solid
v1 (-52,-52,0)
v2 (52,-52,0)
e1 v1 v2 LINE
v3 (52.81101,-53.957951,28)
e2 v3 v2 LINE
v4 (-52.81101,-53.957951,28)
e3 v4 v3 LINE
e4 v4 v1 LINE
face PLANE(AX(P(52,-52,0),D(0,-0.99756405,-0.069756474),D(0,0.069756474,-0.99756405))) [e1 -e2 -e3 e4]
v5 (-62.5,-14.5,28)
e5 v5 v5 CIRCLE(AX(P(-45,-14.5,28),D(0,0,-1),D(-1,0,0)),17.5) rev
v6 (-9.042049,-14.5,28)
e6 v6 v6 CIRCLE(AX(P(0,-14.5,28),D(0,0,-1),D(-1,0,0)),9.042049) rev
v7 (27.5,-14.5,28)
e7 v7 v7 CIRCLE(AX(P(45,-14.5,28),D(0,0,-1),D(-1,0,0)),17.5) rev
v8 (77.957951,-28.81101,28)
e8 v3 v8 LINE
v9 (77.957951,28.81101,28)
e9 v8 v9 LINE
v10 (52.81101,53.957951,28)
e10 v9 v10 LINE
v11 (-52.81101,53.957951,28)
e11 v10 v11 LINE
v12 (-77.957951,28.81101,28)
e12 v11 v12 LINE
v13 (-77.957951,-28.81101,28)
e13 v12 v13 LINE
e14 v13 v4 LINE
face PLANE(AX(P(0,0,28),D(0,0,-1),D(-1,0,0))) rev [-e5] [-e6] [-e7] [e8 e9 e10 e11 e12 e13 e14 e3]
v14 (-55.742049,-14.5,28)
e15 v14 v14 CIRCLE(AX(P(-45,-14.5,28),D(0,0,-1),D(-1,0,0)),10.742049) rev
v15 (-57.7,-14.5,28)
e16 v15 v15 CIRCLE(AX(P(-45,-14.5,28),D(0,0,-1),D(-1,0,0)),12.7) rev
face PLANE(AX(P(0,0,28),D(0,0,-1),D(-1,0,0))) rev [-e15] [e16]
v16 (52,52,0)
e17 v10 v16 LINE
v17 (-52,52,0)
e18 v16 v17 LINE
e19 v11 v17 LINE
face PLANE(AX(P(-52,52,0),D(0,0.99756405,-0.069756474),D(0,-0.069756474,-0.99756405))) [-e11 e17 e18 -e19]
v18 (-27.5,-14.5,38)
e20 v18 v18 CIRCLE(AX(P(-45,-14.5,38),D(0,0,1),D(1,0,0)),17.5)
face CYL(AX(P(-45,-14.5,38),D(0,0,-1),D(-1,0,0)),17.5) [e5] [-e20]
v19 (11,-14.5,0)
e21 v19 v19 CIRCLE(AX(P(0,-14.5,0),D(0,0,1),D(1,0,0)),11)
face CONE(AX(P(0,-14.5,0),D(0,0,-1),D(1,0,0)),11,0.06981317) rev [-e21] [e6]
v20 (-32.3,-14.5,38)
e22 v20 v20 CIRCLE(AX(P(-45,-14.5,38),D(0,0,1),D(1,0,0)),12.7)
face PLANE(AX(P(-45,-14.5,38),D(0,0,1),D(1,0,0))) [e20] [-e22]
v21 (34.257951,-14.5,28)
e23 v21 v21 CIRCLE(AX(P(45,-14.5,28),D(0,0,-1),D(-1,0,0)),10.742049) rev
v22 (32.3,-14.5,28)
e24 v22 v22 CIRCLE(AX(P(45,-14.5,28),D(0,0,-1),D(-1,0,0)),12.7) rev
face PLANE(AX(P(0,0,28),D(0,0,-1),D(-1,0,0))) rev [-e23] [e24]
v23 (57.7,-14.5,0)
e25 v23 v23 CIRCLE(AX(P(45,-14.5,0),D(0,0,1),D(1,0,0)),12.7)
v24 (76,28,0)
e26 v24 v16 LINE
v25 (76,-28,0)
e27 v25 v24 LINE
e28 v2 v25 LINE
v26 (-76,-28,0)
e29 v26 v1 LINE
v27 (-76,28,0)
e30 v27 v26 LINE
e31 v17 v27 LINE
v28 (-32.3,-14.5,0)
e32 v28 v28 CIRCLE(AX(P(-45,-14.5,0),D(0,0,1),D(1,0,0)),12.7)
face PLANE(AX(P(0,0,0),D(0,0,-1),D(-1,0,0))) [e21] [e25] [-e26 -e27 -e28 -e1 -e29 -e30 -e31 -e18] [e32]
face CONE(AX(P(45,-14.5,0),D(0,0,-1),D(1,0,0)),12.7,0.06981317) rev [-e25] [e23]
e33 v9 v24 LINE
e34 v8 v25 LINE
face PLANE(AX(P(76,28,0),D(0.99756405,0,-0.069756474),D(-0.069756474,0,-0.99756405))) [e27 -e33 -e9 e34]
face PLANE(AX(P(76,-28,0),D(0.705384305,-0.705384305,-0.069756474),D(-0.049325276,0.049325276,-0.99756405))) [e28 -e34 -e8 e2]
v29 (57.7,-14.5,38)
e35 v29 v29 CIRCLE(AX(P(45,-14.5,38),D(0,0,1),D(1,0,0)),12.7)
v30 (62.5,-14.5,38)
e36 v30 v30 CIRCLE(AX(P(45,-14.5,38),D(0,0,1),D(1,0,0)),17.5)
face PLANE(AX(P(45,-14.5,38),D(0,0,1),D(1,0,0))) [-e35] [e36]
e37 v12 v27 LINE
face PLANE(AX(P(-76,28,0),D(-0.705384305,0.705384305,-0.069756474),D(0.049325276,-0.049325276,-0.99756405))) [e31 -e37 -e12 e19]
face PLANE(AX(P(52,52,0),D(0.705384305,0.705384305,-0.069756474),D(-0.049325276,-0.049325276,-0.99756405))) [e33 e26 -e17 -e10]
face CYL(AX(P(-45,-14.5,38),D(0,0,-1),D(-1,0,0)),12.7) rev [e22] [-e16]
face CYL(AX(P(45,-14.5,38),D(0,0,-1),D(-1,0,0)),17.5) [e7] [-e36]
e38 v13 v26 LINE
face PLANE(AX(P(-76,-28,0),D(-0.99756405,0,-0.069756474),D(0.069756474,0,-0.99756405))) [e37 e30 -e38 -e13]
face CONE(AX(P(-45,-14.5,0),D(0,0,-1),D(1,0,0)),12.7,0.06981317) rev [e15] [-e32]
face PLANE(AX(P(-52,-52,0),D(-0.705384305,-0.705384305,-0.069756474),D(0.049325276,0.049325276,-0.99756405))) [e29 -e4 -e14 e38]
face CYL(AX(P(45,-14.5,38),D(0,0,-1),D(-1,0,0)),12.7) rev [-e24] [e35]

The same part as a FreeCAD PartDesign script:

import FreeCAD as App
import Part
import Sketcher

V = App.Vector


def faces_at(feature, points):
    """Names of the faces that lie closest to the given points."""
    faces = feature.Shape.Faces
    near = lambda p: min(range(len(faces)), key=lambda i: faces[i].distToShape(Part.Vertex(*p))[0])
    return sorted({f"Face{near(p) + 1}" for p in points})


def add_polygon(sketch, points):
    """Adds a closed chain of lines whose ends are joined by coincident constraints."""
    first, n = sketch.GeometryCount, len(points)
    for a, b in zip(points, points[1:] + points[:1]):
        sketch.addGeometry(Part.LineSegment(App.Vector(*a, 0), App.Vector(*b, 0)), False)
    for i in range(n):
        sketch.addConstraint(Sketcher.Constraint("Coincident", first + i, 2, first + (i + 1) % n, 1))

doc = App.newDocument("Part")
body = doc.addObject("PartDesign::Body", "Body")

# Sketch on XY plane
sketch1 = doc.addObject("Sketcher::SketchObject", "Sketch")
body.addObject(sketch1)
sketch1.AttachmentSupport = (doc.XY_Plane, [""])
sketch1.MapMode = "FlatFace"
add_polygon(sketch1, [(-52, 52), (-76, 28), (-76, -28), (-52, -52), (52, -52), (76, -28), (76, 28), (52, 52)])  # lines 0-7
sketch1.addGeometry(Part.Circle(V(-45, -14, 0), V(0, 0, 1), 13), False)  # 8
sketch1.addGeometry(Part.Circle(V(0, -14, 0), V(0, 0, 1), 11), False)  # 9
sketch1.addGeometry(Part.Circle(V(45, -14, 0), V(0, 0, 1), 13), False)  # 10
sketch1.addConstraint(Sketcher.Constraint("Vertical", 1))
sketch1.addConstraint(Sketcher.Constraint("Horizontal", 3))
sketch1.addConstraint(Sketcher.Constraint("Vertical", 5))
sketch1.addConstraint(Sketcher.Constraint("Horizontal", 7))
sketch1.addConstraint(Sketcher.Constraint("Equal", 8, 10))
sketch1.addConstraint(Sketcher.Constraint("Symmetric", 0, 2, 4, 2, -1, 1))
sketch1.addConstraint(Sketcher.Constraint("Symmetric", 2, 2, 6, 2, -1, 1))
sketch1.addConstraint(Sketcher.Constraint("Symmetric", 8, 3, 10, 3, -2))
sketch1.addConstraint(Sketcher.Constraint("PointOnObject", 9, 3, -2))
sketch1.addConstraint(Sketcher.Constraint("Perpendicular", 0, 2))
sketch1.addConstraint(Sketcher.Constraint("Perpendicular", 2, 4))
sketch1.addConstraint(Sketcher.Constraint("Perpendicular", 4, 6))
sketch1.addConstraint(Sketcher.Constraint("Horizontal", 8, 3, 9, 3))
sketch1.addConstraint(Sketcher.Constraint("Horizontal", 1, 2, 4, 2))
sketch1.addConstraint(Sketcher.Constraint("Vertical", 3, 2, 6, 2))
sketch1.addConstraint(Sketcher.Constraint("Diameter", 9, 22.0))
sketch1.addConstraint(Sketcher.Constraint("Diameter", 8, 25.4))
sketch1.addConstraint(Sketcher.Constraint("DistanceX", 3, 1, 3, 2, 104.0))
sketch1.addConstraint(Sketcher.Constraint("DistanceY", 1, 2, 1, 1, 56.0))
sketch1.addConstraint(Sketcher.Constraint("DistanceX", 8, 3, -1, 1, 45.0))
sketch1.addConstraint(Sketcher.Constraint("DistanceX", 0, 2, -1, 1, 76.0))
sketch1.addConstraint(Sketcher.Constraint("DistanceY", 8, 3, -1, 1, 14.5))
pad1 = doc.addObject("PartDesign::Pad", "Pad")
body.addObject(pad1)
pad1.Profile = sketch1
pad1.Length = 28
doc.recompute()

draft = doc.addObject("PartDesign::Draft", "Draft")
body.addObject(draft)
draft.Base = (pad1, faces_at(pad1, [
    (-64, 40, 14),
    (-76, 0, 14),
    (-64, -40, 14),
    (0, -52, 14),
    (64, -40, 14),
    (76, 0, 14),
    (64, 40, 14),
    (0, 52, 14),
    (-57.7, -14.5, 14),
    (32.3, -14.5, 14),
    (-11, -14.5, 14),
]))
draft.NeutralPlane = (doc.XY_Plane, [""])
draft.Angle = 4
draft.Reversed = True

# Sketch on XY plane
sketch2 = doc.addObject("Sketcher::SketchObject", "Sketch001")
body.addObject(sketch2)
sketch2.AttachmentSupport = (doc.XY_Plane, [""])
sketch2.MapMode = "FlatFace"
sketch2.addGeometry(Part.Circle(V(-45, -14, 0), V(0, 0, 1), 18), False)
sketch2.addGeometry(Part.Circle(V(-45, -14, 0), V(0, 0, 1), 13), False)
sketch2.addGeometry(Part.Circle(V(45, -14, 0), V(0, 0, 1), 18), False)
sketch2.addGeometry(Part.Circle(V(45, -14, 0), V(0, 0, 1), 13), False)
sketch2.addConstraint(Sketcher.Constraint("Coincident", 1, 3, 0, 3))
sketch2.addConstraint(Sketcher.Constraint("Coincident", 3, 3, 2, 3))
sketch2.addConstraint(Sketcher.Constraint("Equal", 0, 2))
sketch2.addConstraint(Sketcher.Constraint("Equal", 1, 3))
sketch2.addConstraint(Sketcher.Constraint("Symmetric", 0, 3, 2, 3, -2))
sketch2.addConstraint(Sketcher.Constraint("Diameter", 0, 35.0))
sketch2.addConstraint(Sketcher.Constraint("Diameter", 1, 25.4))
sketch2.addConstraint(Sketcher.Constraint("DistanceX", 0, 3, -1, 1, 45.0))
sketch2.addConstraint(Sketcher.Constraint("DistanceY", 0, 3, -1, 1, 14.5))
pad2 = doc.addObject("PartDesign::Pad", "Pad001")
body.addObject(pad2)
pad2.Profile = sketch2
pad2.Length = 38

doc.recompute()
